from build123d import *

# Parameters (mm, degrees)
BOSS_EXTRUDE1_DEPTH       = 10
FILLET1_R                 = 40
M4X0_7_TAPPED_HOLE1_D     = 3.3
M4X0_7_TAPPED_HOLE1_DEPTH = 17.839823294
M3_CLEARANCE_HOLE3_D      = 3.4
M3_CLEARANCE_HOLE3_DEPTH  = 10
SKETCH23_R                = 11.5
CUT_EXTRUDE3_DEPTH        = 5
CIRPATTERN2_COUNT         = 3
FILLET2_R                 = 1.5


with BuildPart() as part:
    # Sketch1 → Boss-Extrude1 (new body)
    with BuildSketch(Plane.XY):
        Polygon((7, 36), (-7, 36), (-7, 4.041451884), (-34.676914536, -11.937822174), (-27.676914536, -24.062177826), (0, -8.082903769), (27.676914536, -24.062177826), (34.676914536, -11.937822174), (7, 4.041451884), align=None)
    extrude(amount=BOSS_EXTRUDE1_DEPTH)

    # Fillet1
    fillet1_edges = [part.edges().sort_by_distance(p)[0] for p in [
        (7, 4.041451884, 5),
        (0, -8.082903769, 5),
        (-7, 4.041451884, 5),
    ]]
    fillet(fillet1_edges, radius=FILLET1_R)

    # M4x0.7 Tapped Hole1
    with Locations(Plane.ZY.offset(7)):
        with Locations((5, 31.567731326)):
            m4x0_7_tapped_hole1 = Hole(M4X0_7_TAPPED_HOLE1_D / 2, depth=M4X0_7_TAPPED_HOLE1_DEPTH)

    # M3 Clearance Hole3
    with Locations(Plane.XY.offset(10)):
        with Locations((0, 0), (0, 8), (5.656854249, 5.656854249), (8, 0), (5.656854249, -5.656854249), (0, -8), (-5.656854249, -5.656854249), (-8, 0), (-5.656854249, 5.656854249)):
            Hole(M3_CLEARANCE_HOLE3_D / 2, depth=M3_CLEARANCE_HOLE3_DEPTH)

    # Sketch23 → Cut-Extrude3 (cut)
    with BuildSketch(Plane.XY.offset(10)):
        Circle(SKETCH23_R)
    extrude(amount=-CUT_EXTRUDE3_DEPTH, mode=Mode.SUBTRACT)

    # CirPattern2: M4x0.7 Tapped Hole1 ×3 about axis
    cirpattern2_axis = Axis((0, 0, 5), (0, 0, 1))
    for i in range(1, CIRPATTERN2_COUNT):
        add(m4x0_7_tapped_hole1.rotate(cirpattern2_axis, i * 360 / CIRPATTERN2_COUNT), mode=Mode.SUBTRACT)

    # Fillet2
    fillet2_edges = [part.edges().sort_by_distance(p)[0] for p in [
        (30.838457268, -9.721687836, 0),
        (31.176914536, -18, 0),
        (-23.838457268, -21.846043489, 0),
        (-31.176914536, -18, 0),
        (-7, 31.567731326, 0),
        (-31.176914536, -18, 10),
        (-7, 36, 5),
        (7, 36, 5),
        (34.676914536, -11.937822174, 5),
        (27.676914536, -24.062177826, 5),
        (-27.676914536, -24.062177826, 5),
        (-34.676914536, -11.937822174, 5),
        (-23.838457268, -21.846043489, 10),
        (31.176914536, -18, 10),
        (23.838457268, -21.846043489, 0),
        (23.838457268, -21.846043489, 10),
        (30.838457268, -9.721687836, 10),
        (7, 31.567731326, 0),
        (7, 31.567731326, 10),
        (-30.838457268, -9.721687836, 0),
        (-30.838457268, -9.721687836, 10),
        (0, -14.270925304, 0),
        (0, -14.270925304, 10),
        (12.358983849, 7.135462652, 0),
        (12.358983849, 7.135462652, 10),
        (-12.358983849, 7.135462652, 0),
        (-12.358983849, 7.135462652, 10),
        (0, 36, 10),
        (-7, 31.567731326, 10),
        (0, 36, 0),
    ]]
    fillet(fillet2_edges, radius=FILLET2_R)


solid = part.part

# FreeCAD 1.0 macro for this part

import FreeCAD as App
import Part
import Sketcher

V = App.Vector
Q = App.Units.Quantity


def edges_at(feature, points):
    """Names of the edges that pass closest to the given points."""
    edges = feature.Shape.Edges
    near = lambda p: min(range(len(edges)), key=lambda i: edges[i].distToShape(Part.Vertex(*p))[0])
    return sorted({f"Edge{near(p) + 1}" for p in points})

doc = App.newDocument("Part")
body = doc.addObject("PartDesign::Body", "Body")

# Sketch on XY plane
sketch1 = doc.addObject("Sketcher::SketchObject", "Sketch")
body.addObject(sketch1)
sketch1.AttachmentSupport = (doc.XY_Plane, [""])
sketch1.MapMode = "FlatFace"
sketch1.addGeometry([
    Part.LineSegment(V(7, 36, 0), V(-7, 36, 0)),  # 0
    Part.LineSegment(V(-7, 36, 0), V(-7, 4, 0)),  # 1
    Part.LineSegment(V(-7, 4, 0), V(-35, -12, 0)),  # 2
    Part.LineSegment(V(-35, -12, 0), V(-28, -24, 0)),  # 3
    Part.LineSegment(V(-28, -24, 0), V(0, -8, 0)),  # 4
    Part.LineSegment(V(0, -8, 0), V(28, -24, 0)),  # 5
    Part.LineSegment(V(28, -24, 0), V(35, -12, 0)),  # 6
    Part.LineSegment(V(35, -12, 0), V(7, 4, 0)),  # 7
    Part.LineSegment(V(7, 4, 0), V(7, 36, 0)),  # 8
], False)
sketch1.addConstraint([
    Sketcher.Constraint("Coincident", 0, 2, 1, 1),
    Sketcher.Constraint("Coincident", 1, 2, 2, 1),
    Sketcher.Constraint("Coincident", 2, 2, 3, 1),
    Sketcher.Constraint("Coincident", 3, 2, 4, 1),
    Sketcher.Constraint("Coincident", 4, 2, 5, 1),
    Sketcher.Constraint("Coincident", 5, 2, 6, 1),
    Sketcher.Constraint("Coincident", 6, 2, 7, 1),
    Sketcher.Constraint("Coincident", 7, 2, 8, 1),
    Sketcher.Constraint("Coincident", 8, 2, 0, 1),
    Sketcher.Constraint("Horizontal", 0),
    Sketcher.Constraint("Vertical", 1),
    Sketcher.Constraint("Vertical", 8),
    Sketcher.Constraint("Symmetric", 3, 2, 5, 2, -2),
    Sketcher.Constraint("Symmetric", 2, 2, 6, 2, -2),
    Sketcher.Constraint("Symmetric", 1, 2, 7, 2, -2),
    Sketcher.Constraint("PointOnObject", 4, 2, -2),
    Sketcher.Constraint("Perpendicular", 2, 3),
    Sketcher.Constraint("Perpendicular", 3, 4),
    Sketcher.Constraint("Equal", 2, 4),
    Sketcher.Constraint("DistanceX", 0, 2, 0, 1, Q("14 mm")),
    Sketcher.Constraint("Angle", 2, Q("-150 deg")),
    Sketcher.Constraint("DistanceY", -1, 1, 0, 2, Q("36 mm")),
    Sketcher.Constraint("DistanceY", 1, 2, 1, 1, Q("31.958548 mm")),
    Sketcher.Constraint("Distance", 2, Q("31.958548 mm")),
])
pad1 = doc.addObject("PartDesign::Pad", "Pad")
body.addObject(pad1)
pad1.Profile = sketch1
pad1.Length = 10
doc.recompute()

fillet = doc.addObject("PartDesign::Fillet", "Fillet")
body.addObject(fillet)
fillet.Base = (pad1, edges_at(pad1, [(7, 4.041, 5), (0, -8.083, 5), (-7, 4.041, 5)]))
fillet.Radius = 40

# Sketch on YZ plane
sketch2 = doc.addObject("Sketcher::SketchObject", "Sketch001")
body.addObject(sketch2)
sketch2.AttachmentSupport = (doc.YZ_Plane, [""])
sketch2.MapMode = "FlatFace"
sketch2.AttachmentOffset = App.Placement(V(0, 0, -7), App.Rotation())
sketch2.addGeometry(Part.Circle(V(31.6, 5, 0), V(0, 0, 1), 1.6), False)
sketch2.addConstraint([
    Sketcher.Constraint("Diameter", 0, Q("3.3 mm")),
    Sketcher.Constraint("DistanceY", -1, 1, 0, 3, Q("5 mm")),
    Sketcher.Constraint("DistanceX", -1, 1, 0, 3, Q("31.567731 mm")),
])
doc.recompute()
hole = doc.addObject("PartDesign::Hole", "Hole")
body.addObject(hole)
hole.Profile = sketch2
hole.ThreadType = "None"
hole.Diameter = 3.3
hole.DepthType = "Dimension"
hole.Depth = 17.839823
hole.DrillPoint = "Flat"
hole.Reversed = True

# Sketch on XY plane
sketch3 = doc.addObject("Sketcher::SketchObject", "Sketch002")
body.addObject(sketch3)
sketch3.AttachmentSupport = (doc.XY_Plane, [""])
sketch3.MapMode = "FlatFace"
sketch3.AttachmentOffset = App.Placement(V(0, 0, 10), App.Rotation())
sketch3.addGeometry([
    Part.Circle(V(0, 0, 0), V(0, 0, 1), 1.7),  # 0
    Part.Circle(V(0, 8, 0), V(0, 0, 1), 1.7),  # 1
    Part.Circle(V(5.7, 5.7, 0), V(0, 0, 1), 1.7),  # 2
    Part.Circle(V(8, 0, 0), V(0, 0, 1), 1.7),  # 3
    Part.Circle(V(5.7, -5.7, 0), V(0, 0, 1), 1.7),  # 4
    Part.Circle(V(0, -8, 0), V(0, 0, 1), 1.7),  # 5
    Part.Circle(V(-5.7, -5.7, 0), V(0, 0, 1), 1.7),  # 6
    Part.Circle(V(-8, 0, 0), V(0, 0, 1), 1.7),  # 7
    Part.Circle(V(-5.7, 5.7, 0), V(0, 0, 1), 1.7),  # 8
], False)
sketch3.addConstraint([
    Sketcher.Constraint("Coincident", 0, 3, -1, 1),
    Sketcher.Constraint("Equal", 0, 1),
    Sketcher.Constraint("Equal", 1, 2),
    Sketcher.Constraint("Equal", 2, 3),
    Sketcher.Constraint("Equal", 3, 4),
    Sketcher.Constraint("Equal", 4, 5),
    Sketcher.Constraint("Equal", 5, 6),
    Sketcher.Constraint("Equal", 6, 7),
    Sketcher.Constraint("Equal", 7, 8),
    Sketcher.Constraint("Symmetric", 1, 3, 5, 3, -1, 1),
    Sketcher.Constraint("Symmetric", 2, 3, 6, 3, -1, 1),
    Sketcher.Constraint("Symmetric", 3, 3, 7, 3, -1, 1),
    Sketcher.Constraint("Symmetric", 4, 3, 8, 3, -1, 1),
    Sketcher.Constraint("Symmetric", 4, 3, 6, 3, -2),
    Sketcher.Constraint("PointOnObject", 1, 3, -2),
    Sketcher.Constraint("PointOnObject", 3, 3, -1),
    Sketcher.Constraint("Diameter", 0, Q("3.4 mm")),
    Sketcher.Constraint("DistanceY", -1, 1, 1, 3, Q("8 mm")),
    Sketcher.Constraint("DistanceX", -1, 1, 3, 3, Q("8 mm")),
    Sketcher.Constraint("DistanceY", 4, 3, 2, 3, Q("11.313708 mm")),
    Sketcher.Constraint("DistanceX", 6, 3, 4, 3, Q("11.313708 mm")),
])
doc.recompute()
hole2 = doc.addObject("PartDesign::Hole", "Hole001")
body.addObject(hole2)
hole2.Profile = sketch3
hole2.ThreadType = "None"
hole2.Diameter = 3.4
hole2.DepthType = "Dimension"
hole2.Depth = 10
hole2.DrillPoint = "Flat"

# Sketch on XY plane
sketch4 = doc.addObject("Sketcher::SketchObject", "Sketch003")
body.addObject(sketch4)
sketch4.AttachmentSupport = (doc.XY_Plane, [""])
sketch4.MapMode = "FlatFace"
sketch4.AttachmentOffset = App.Placement(V(0, 0, 10), App.Rotation())
sketch4.addGeometry(Part.Circle(V(0, 0, 0), V(0, 0, 1), 12), False)
sketch4.addConstraint([
    Sketcher.Constraint("Coincident", 0, 3, -1, 1),
    Sketcher.Constraint("Diameter", 0, Q("23 mm")),
])
pocket1 = doc.addObject("PartDesign::Pocket", "Pocket")
body.addObject(pocket1)
pocket1.Profile = sketch4
pocket1.Length = 5
doc.recompute()

polarpattern = doc.addObject("PartDesign::PolarPattern", "PolarPattern")
body.addObject(polarpattern)
polarpattern.Originals = [hole]
polarpattern.Axis = (doc.Z_Axis, [""])
polarpattern.Angle = 360
polarpattern.Occurrences = 3
body.Tip = polarpattern
doc.recompute()

fillet2 = doc.addObject("PartDesign::Fillet", "Fillet001")
body.addObject(fillet2)
fillet2.Base = (polarpattern, edges_at(polarpattern, [
    (30.838, -9.722, 0),
    (31.177, -18, 0),
    (-23.838, -21.846, 0),
    (-31.177, -18, 0),
    (-7, 31.568, 0),
    (-31.177, -18, 10),
    (-7, 36, 5),
    (7, 36, 5),
    (34.677, -11.938, 5),
    (27.677, -24.062, 5),
    (-27.677, -24.062, 5),
    (-34.677, -11.938, 5),
    (-23.838, -21.846, 10),
    (31.177, -18, 10),
    (23.838, -21.846, 0),
    (23.838, -21.846, 10),
    (30.838, -9.722, 10),
    (7, 31.568, 0),
    (7, 31.568, 10),
    (-30.838, -9.722, 0),
    (-30.838, -9.722, 10),
    (0, -14.271, 0),
    (0, -14.271, 10),
    (12.359, 7.135, 0),
    (12.359, 7.135, 10),
    (-12.359, 7.135, 0),
    (-12.359, 7.135, 10),
    (0, 36, 10),
    (-7, 31.568, 10),
    (0, 36, 0),
]))
fillet2.Radius = 1.5

doc.recompute()
